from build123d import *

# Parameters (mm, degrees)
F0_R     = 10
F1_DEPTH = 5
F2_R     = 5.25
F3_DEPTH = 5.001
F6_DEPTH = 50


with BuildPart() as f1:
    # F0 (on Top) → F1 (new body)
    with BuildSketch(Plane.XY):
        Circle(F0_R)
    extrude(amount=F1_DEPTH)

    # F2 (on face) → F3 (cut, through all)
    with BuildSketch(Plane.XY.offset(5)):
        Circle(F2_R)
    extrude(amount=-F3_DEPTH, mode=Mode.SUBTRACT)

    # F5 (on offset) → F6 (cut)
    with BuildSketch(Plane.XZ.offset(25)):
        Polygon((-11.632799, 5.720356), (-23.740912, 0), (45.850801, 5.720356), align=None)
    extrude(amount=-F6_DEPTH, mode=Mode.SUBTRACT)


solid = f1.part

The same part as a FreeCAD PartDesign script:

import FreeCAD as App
import Part
import Sketcher
Q = App.Units.Quantity


def add_polygon(sketch, points):
    """Adds a closed chain of lines whose ends are joined by coincident constraints."""
    first, n = sketch.GeometryCount, len(points)
    for a, b in zip(points, points[1:] + points[:1]):
        sketch.addGeometry(Part.LineSegment(App.Vector(*a, 0), App.Vector(*b, 0)), False)
    for i in range(n):
        sketch.addConstraint(Sketcher.Constraint("Coincident", first + i, 2, first + (i + 1) % n, 1))

doc = App.newDocument("Part")
body = doc.addObject("PartDesign::Body", "Body")

# Sketch on XY plane
sketch1 = body.newObject("Sketcher::SketchObject", "Sketch")
sketch1.AttachmentSupport = (doc.getObject("XY_Plane"), [""])
sketch1.MapMode = "FlatFace"
sketch1.addGeometry(Part.Circle(App.Vector(0, 0, 0), App.Vector(0, 0, 1), 10), False)
sketch1.addConstraint([
    Sketcher.Constraint("Coincident", 0, 3, -1, 1),
    Sketcher.Constraint("Diameter", 0, Q("20 mm")),
])
pad1 = body.newObject("PartDesign::Pad", "Pad")
pad1.Profile = sketch1
pad1.Length = 5

# Sketch on XY plane
sketch2 = body.newObject("Sketcher::SketchObject", "Sketch001")
sketch2.AttachmentSupport = (doc.getObject("XY_Plane"), [""])
sketch2.MapMode = "FlatFace"
sketch2.AttachmentOffset = App.Placement(App.Vector(0, 0, 5), App.Rotation())
sketch2.addGeometry(Part.Circle(App.Vector(0, 0, 0), App.Vector(0, 0, 1), 5), False)
sketch2.addConstraint([
    Sketcher.Constraint("Coincident", 0, 3, -1, 1),
    Sketcher.Constraint("Diameter", 0, Q("10.5 mm")),
])
pocket1 = body.newObject("PartDesign::Pocket", "Pocket")
pocket1.Profile = sketch2
pocket1.Type = "ThroughAll"

# Sketch on XZ plane
sketch3 = body.newObject("Sketcher::SketchObject", "Sketch002")
sketch3.AttachmentSupport = (doc.getObject("XZ_Plane"), [""])
sketch3.MapMode = "FlatFace"
sketch3.AttachmentOffset = App.Placement(App.Vector(0, 0, 25), App.Rotation())
add_polygon(sketch3, [(-12, 6), (-24, 0), (46, 6)])  # lines 0-2
sketch3.addConstraint([
    Sketcher.Constraint("Horizontal", 2),
    Sketcher.Constraint("PointOnObject", 0, 2, -1),
    Sketcher.Constraint("DistanceX", 2, 2, 2, 1, Q("57.4836 mm")),
    Sketcher.Constraint("DistanceX", -1, 1, 1, 2, Q("45.850801 mm")),
    Sketcher.Constraint("Distance", 1, Q("69.82642 mm")),
    Sketcher.Constraint("Distance", 0, Q("13.391373 mm")),
])
pocket2 = body.newObject("PartDesign::Pocket", "Pocket001")
pocket2.Profile = sketch3
pocket2.Length = 50

doc.recompute()
